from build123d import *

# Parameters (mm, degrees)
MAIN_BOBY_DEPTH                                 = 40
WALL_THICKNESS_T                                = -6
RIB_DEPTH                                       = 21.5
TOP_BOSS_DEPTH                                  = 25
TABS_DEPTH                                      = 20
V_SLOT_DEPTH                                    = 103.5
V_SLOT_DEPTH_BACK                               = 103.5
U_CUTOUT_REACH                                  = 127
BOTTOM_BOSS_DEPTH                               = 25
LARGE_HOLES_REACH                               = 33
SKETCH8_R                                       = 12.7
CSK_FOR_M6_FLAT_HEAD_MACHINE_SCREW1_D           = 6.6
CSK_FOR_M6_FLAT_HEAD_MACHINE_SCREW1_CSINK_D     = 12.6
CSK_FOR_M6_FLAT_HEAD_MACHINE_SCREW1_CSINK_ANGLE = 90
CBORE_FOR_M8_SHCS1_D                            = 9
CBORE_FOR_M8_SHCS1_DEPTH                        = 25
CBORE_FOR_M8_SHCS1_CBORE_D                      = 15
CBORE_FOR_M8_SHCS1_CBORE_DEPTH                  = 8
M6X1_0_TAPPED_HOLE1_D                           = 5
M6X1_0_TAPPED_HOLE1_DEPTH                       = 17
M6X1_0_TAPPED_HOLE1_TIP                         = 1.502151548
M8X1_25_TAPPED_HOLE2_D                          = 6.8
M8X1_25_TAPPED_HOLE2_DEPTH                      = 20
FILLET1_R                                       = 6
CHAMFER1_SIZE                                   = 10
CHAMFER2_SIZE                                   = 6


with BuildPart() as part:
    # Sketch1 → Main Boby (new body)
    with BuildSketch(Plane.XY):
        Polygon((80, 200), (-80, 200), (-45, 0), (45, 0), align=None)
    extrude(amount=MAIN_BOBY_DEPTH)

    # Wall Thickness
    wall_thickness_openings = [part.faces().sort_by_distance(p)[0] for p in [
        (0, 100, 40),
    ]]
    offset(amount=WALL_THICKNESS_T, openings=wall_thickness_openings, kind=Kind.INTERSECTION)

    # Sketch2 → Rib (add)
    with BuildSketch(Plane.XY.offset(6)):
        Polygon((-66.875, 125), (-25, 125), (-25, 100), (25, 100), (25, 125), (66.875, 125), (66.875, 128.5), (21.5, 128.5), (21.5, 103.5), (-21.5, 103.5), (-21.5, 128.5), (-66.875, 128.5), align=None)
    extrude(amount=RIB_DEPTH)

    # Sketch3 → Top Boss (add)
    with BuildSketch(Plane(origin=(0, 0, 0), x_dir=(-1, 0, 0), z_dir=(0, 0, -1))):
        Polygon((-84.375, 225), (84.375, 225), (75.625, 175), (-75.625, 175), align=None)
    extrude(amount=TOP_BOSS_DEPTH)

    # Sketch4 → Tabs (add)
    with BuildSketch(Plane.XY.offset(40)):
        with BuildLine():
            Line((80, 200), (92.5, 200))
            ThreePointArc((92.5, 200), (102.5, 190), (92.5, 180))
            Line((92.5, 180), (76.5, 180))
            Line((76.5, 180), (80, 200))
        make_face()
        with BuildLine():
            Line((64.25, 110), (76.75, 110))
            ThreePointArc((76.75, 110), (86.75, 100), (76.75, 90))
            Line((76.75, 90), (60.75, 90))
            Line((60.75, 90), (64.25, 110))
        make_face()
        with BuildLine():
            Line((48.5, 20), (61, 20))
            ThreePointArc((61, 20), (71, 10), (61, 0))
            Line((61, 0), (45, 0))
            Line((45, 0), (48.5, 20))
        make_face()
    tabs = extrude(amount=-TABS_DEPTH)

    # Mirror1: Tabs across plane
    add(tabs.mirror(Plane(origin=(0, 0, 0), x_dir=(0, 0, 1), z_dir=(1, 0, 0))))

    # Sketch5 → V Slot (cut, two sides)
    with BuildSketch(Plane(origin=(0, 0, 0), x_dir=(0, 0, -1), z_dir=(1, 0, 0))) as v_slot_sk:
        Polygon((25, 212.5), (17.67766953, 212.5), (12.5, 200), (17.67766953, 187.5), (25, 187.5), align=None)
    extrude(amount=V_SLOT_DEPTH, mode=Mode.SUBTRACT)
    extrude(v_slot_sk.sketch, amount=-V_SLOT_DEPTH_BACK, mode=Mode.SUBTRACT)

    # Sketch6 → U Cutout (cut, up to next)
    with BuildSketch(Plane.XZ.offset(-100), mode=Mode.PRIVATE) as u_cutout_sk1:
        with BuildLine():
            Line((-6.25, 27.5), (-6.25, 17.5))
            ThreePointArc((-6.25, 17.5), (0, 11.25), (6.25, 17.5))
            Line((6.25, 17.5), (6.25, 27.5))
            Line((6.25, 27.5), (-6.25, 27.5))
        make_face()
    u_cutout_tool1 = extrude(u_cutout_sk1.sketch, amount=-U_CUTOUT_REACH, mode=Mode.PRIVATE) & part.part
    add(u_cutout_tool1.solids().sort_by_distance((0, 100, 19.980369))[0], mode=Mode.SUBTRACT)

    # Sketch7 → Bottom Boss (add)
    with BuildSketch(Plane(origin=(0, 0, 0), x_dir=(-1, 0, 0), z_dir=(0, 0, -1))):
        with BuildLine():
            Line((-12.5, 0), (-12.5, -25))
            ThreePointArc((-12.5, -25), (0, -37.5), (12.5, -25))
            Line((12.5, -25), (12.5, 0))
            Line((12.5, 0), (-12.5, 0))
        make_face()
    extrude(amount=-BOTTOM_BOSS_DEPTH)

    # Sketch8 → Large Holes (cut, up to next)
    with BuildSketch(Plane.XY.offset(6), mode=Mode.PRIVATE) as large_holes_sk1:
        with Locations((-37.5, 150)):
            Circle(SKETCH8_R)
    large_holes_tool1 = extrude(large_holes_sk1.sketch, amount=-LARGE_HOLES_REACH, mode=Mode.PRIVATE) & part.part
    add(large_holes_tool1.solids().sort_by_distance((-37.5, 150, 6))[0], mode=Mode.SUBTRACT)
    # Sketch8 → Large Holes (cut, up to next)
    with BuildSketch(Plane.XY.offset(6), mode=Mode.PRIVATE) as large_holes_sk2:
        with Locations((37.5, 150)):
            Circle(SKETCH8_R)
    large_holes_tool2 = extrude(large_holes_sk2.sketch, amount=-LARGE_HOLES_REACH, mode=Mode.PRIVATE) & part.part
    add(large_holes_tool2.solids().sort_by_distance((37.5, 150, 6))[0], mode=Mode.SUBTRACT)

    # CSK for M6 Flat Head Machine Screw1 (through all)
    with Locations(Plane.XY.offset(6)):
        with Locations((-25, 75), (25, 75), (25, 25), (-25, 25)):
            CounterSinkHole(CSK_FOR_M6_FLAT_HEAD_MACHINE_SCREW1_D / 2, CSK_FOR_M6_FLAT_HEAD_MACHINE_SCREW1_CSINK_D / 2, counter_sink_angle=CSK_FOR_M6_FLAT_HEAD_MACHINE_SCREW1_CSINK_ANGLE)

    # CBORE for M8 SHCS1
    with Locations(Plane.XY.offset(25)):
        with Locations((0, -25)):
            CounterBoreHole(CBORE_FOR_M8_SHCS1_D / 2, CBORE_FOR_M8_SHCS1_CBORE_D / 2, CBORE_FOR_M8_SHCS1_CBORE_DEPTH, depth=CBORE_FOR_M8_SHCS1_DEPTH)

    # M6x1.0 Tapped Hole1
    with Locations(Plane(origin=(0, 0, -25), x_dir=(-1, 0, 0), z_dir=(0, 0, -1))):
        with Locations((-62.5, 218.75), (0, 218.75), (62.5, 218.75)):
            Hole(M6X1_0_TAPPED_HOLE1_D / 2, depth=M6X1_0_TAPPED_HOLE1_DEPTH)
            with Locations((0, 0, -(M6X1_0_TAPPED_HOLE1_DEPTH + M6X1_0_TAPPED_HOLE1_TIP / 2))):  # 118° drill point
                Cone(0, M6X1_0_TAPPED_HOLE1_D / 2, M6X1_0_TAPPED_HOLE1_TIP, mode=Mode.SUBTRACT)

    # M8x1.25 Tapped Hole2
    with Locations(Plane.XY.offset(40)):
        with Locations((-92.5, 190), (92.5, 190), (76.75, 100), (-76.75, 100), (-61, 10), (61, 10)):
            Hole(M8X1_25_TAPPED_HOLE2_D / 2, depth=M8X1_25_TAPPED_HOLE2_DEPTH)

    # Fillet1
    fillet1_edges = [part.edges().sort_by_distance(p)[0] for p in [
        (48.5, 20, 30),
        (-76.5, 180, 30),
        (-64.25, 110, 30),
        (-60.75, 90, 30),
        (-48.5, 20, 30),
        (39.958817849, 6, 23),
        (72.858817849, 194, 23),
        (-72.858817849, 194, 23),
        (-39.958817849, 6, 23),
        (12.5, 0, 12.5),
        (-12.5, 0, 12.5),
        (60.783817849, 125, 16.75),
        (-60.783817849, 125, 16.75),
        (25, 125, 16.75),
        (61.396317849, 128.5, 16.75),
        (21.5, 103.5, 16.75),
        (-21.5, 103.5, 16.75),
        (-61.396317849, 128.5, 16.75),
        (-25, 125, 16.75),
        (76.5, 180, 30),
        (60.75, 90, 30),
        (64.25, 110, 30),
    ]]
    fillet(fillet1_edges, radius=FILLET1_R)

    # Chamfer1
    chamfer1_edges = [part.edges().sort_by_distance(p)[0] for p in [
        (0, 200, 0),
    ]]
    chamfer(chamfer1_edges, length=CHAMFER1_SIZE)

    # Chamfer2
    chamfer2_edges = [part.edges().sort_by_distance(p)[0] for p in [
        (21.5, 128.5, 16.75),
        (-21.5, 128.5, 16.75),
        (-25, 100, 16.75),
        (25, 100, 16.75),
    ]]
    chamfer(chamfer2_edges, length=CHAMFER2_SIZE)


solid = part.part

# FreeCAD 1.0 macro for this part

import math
import FreeCAD as App
import Part
import Sketcher
Q = App.Units.Quantity


def edges_at(feature, points):
    """Names of the edges that pass closest to the given points."""
    edges = feature.Shape.Edges
    near = lambda p: min(range(len(edges)), key=lambda i: edges[i].distToShape(Part.Vertex(*p))[0])
    return sorted({f"Edge{near(p) + 1}" for p in points})


def faces_at(feature, points):
    """Names of the faces that lie closest to the given points."""
    faces = feature.Shape.Faces
    near = lambda p: min(range(len(faces)), key=lambda i: faces[i].distToShape(Part.Vertex(*p))[0])
    return sorted({f"Face{near(p) + 1}" for p in points})

doc = App.newDocument("Part")
body = doc.addObject("PartDesign::Body", "Body")

sketch1 = doc.addObject("Sketcher::SketchObject", "Sketch")
body.addObject(sketch1)
sketch1.AttachmentSupport = (doc.XY_Plane, [""])
sketch1.MapMode = "FlatFace"
sketch1.addGeometry([
    Part.LineSegment(App.Vector(80, 200, 0), App.Vector(-80, 200, 0)),
    Part.LineSegment(App.Vector(-80, 200, 0), App.Vector(-45, 0, 0)),
    Part.LineSegment(App.Vector(-45, 0, 0), App.Vector(45, 0, 0)),
    Part.LineSegment(App.Vector(45, 0, 0), App.Vector(80, 200, 0)),
], False)
sketch1.addConstraint([
    Sketcher.Constraint("Coincident", 0, 2, 1, 1),
    Sketcher.Constraint("Coincident", 1, 2, 2, 1),
    Sketcher.Constraint("Coincident", 2, 2, 3, 1),
    Sketcher.Constraint("Coincident", 3, 2, 0, 1),
    Sketcher.Constraint("Horizontal", 0),
    Sketcher.Constraint("Horizontal", 2),
    Sketcher.Constraint("Symmetric", 1, 2, 2, 2, -1, 1),
    Sketcher.Constraint("Equal", 1, 3),
    Sketcher.Constraint("DistanceX", 0, 2, 0, 1, 160.0),
    Sketcher.Constraint("DistanceX", 2, 1, 2, 2, 90.0),
    Sketcher.Constraint("DistanceY", -1, 1, 0, 2, 200.0),
])
pad1 = doc.addObject("PartDesign::Pad", "Pad")
body.addObject(pad1)
pad1.Profile = sketch1
pad1.Length = 40
doc.recompute()

thickness = doc.addObject("PartDesign::Thickness", "Thickness")
body.addObject(thickness)
thickness.Base = (pad1, faces_at(pad1, [(0, 100, 40)]))
thickness.Value = 6
thickness.Reversed = True
thickness.Join = "Intersection"

sketch2 = doc.addObject("Sketcher::SketchObject", "Sketch001")
body.addObject(sketch2)
sketch2.AttachmentSupport = (doc.XY_Plane, [""])
sketch2.MapMode = "FlatFace"
sketch2.AttachmentOffset = App.Placement(App.Vector(0, 0, 6), App.Rotation())
sketch2.addGeometry([
    Part.LineSegment(App.Vector(-66.9, 125, 0), App.Vector(-25, 125, 0)),
    Part.LineSegment(App.Vector(-25, 125, 0), App.Vector(-25, 100, 0)),
    Part.LineSegment(App.Vector(-25, 100, 0), App.Vector(25, 100, 0)),
    Part.LineSegment(App.Vector(25, 100, 0), App.Vector(25, 125, 0)),
    Part.LineSegment(App.Vector(25, 125, 0), App.Vector(66.9, 125, 0)),
    Part.LineSegment(App.Vector(66.9, 125, 0), App.Vector(66.9, 128.5, 0)),
    Part.LineSegment(App.Vector(66.9, 128.5, 0), App.Vector(21.5, 128.5, 0)),
    Part.LineSegment(App.Vector(21.5, 128.5, 0), App.Vector(21.5, 103.5, 0)),
    Part.LineSegment(App.Vector(21.5, 103.5, 0), App.Vector(-21.5, 103.5, 0)),
    Part.LineSegment(App.Vector(-21.5, 103.5, 0), App.Vector(-21.5, 128.5, 0)),
    Part.LineSegment(App.Vector(-21.5, 128.5, 0), App.Vector(-66.9, 128.5, 0)),
    Part.LineSegment(App.Vector(-66.9, 128.5, 0), App.Vector(-66.9, 125, 0)),
], False)
sketch2.addConstraint([
    Sketcher.Constraint("Coincident", 0, 2, 1, 1),
    Sketcher.Constraint("Coincident", 1, 2, 2, 1),
    Sketcher.Constraint("Coincident", 2, 2, 3, 1),
    Sketcher.Constraint("Coincident", 3, 2, 4, 1),
    Sketcher.Constraint("Coincident", 4, 2, 5, 1),
    Sketcher.Constraint("Coincident", 5, 2, 6, 1),
    Sketcher.Constraint("Coincident", 6, 2, 7, 1),
    Sketcher.Constraint("Coincident", 7, 2, 8, 1),
    Sketcher.Constraint("Coincident", 8, 2, 9, 1),
    Sketcher.Constraint("Coincident", 9, 2, 10, 1),
    Sketcher.Constraint("Coincident", 10, 2, 11, 1),
    Sketcher.Constraint("Coincident", 11, 2, 0, 1),
    Sketcher.Constraint("Horizontal", 0),
    Sketcher.Constraint("Vertical", 1),
    Sketcher.Constraint("Horizontal", 2),
    Sketcher.Constraint("Vertical", 3),
    Sketcher.Constraint("Horizontal", 4),
    Sketcher.Constraint("Vertical", 5),
    Sketcher.Constraint("Horizontal", 6),
    Sketcher.Constraint("Vertical", 7),
    Sketcher.Constraint("Horizontal", 8),
    Sketcher.Constraint("Vertical", 9),
    Sketcher.Constraint("Horizontal", 10),
    Sketcher.Constraint("Vertical", 11),
    Sketcher.Constraint("Symmetric", 0, 2, 3, 2, -2),
    Sketcher.Constraint("Symmetric", 6, 2, 9, 2, -2),
    Sketcher.Constraint("Equal", 0, 4),
    Sketcher.Constraint("Equal", 3, 7),
    Sketcher.Constraint("DistanceX", 2, 1, 2, 2, 50.0),
    Sketcher.Constraint("DistanceX", 8, 2, 8, 1, 43.0),
    Sketcher.Constraint("DistanceY", 1, 2, 1, 1, 25.0),
    Sketcher.Constraint("DistanceY", 5, 1, 5, 2, 3.5),
    Sketcher.Constraint("DistanceY", -1, 1, 0, 2, 125.0),
    Sketcher.Constraint("DistanceX", 0, 1, 0, 2, 41.875),
])
pad2 = doc.addObject("PartDesign::Pad", "Pad001")
body.addObject(pad2)
pad2.Profile = sketch2
pad2.Length = 21.5

sketch3 = doc.addObject("Sketcher::SketchObject", "Sketch002")
body.addObject(sketch3)
sketch3.AttachmentSupport = (doc.XY_Plane, [""])
sketch3.MapMode = "FlatFace"
sketch3.addGeometry([
    Part.LineSegment(App.Vector(-84, 225, 0), App.Vector(84, 225, 0)),
    Part.LineSegment(App.Vector(84, 225, 0), App.Vector(76, 175, 0)),
    Part.LineSegment(App.Vector(76, 175, 0), App.Vector(-76, 175, 0)),
    Part.LineSegment(App.Vector(-76, 175, 0), App.Vector(-84, 225, 0)),
], False)
sketch3.addConstraint([
    Sketcher.Constraint("Coincident", 0, 2, 1, 1),
    Sketcher.Constraint("Coincident", 1, 2, 2, 1),
    Sketcher.Constraint("Coincident", 2, 2, 3, 1),
    Sketcher.Constraint("Coincident", 3, 2, 0, 1),
    Sketcher.Constraint("Horizontal", 0),
    Sketcher.Constraint("Horizontal", 2),
    Sketcher.Constraint("Equal", 1, 3),
    Sketcher.Constraint("DistanceY", -1, 1, 0, 2, 225.0),
    Sketcher.Constraint("DistanceY", -1, 1, 1, 2, 175.0),
    Sketcher.Constraint("DistanceX", 2, 2, 0, 2, 160.0),
    Sketcher.Constraint("DistanceX", 0, 1, 0, 2, 168.75),
    Sketcher.Constraint("DistanceX", -1, 1, 0, 2, 84.375),
])
pad3 = doc.addObject("PartDesign::Pad", "Pad002")
body.addObject(pad3)
pad3.Profile = sketch3
pad3.Length = 25
pad3.Reversed = True

sketch4 = doc.addObject("Sketcher::SketchObject", "Sketch003")
body.addObject(sketch4)
sketch4.AttachmentSupport = (doc.XY_Plane, [""])
sketch4.MapMode = "FlatFace"
sketch4.AttachmentOffset = App.Placement(App.Vector(0, 0, 40), App.Rotation())
sketch4.addGeometry([
    Part.LineSegment(App.Vector(92, 200, 0), App.Vector(80, 200, 0)),
    Part.LineSegment(App.Vector(80, 200, 0), App.Vector(76, 180, 0)),
    Part.LineSegment(App.Vector(76, 180, 0), App.Vector(92, 180, 0)),
    Part.ArcOfCircle(Part.Circle(App.Vector(92, 190, 0), App.Vector(0, 0, 1), 10), math.radians(-90), math.radians(90)),
    Part.LineSegment(App.Vector(77, 110, 0), App.Vector(64, 110, 0)),
    Part.LineSegment(App.Vector(64, 110, 0), App.Vector(61, 90, 0)),
    Part.LineSegment(App.Vector(61, 90, 0), App.Vector(77, 90, 0)),
    Part.ArcOfCircle(Part.Circle(App.Vector(77, 100, 0), App.Vector(0, 0, 1), 10), math.radians(-90), math.radians(90)),
    Part.LineSegment(App.Vector(61, 20, 0), App.Vector(48, 20, 0)),
    Part.LineSegment(App.Vector(48, 20, 0), App.Vector(45, 0, 0)),
    Part.LineSegment(App.Vector(45, 0, 0), App.Vector(61, 0, 0)),
    Part.ArcOfCircle(Part.Circle(App.Vector(61, 10, 0), App.Vector(0, 0, 1), 10), math.radians(-90), math.radians(90)),
], False)
sketch4.addConstraint([
    Sketcher.Constraint("Coincident", 0, 2, 1, 1),
    Sketcher.Constraint("Coincident", 1, 2, 2, 1),
    Sketcher.Constraint("Tangent", 2, 2, 3, 1),
    Sketcher.Constraint("Tangent", 3, 2, 0, 1),
    Sketcher.Constraint("Coincident", 4, 2, 5, 1),
    Sketcher.Constraint("Coincident", 5, 2, 6, 1),
    Sketcher.Constraint("Tangent", 6, 2, 7, 1),
    Sketcher.Constraint("Tangent", 7, 2, 4, 1),
    Sketcher.Constraint("Coincident", 8, 2, 9, 1),
    Sketcher.Constraint("Coincident", 9, 2, 10, 1),
    Sketcher.Constraint("Tangent", 10, 2, 11, 1),
    Sketcher.Constraint("Tangent", 11, 2, 8, 1),
    Sketcher.Constraint("Horizontal", 0),
    Sketcher.Constraint("Horizontal", 2),
    Sketcher.Constraint("Horizontal", 4),
    Sketcher.Constraint("Horizontal", 6),
    Sketcher.Constraint("Horizontal", 8),
    Sketcher.Constraint("Horizontal", 10),
    Sketcher.Constraint("Equal", 3, 7),
    Sketcher.Constraint("Equal", 7, 11),
    Sketcher.Constraint("PointOnObject", 9, 2, -1),
    Sketcher.Constraint("Parallel", 1, 5),
    Sketcher.Constraint("Parallel", 5, 9),
    Sketcher.Constraint("Equal", 0, 4),
    Sketcher.Constraint("Equal", 4, 8),
    Sketcher.Constraint("Radius", 3, 10.0),
    Sketcher.Constraint("DistanceX", 2, 1, 2, 2, 16.0),
    Sketcher.Constraint("DistanceX", 0, 2, 0, 1, 12.5),
    Sketcher.Constraint("DistanceY", -1, 1, 3, 3, 190.0),
    Sketcher.Constraint("DistanceY", -1, 1, 7, 3, 100.0),
    Sketcher.Constraint("DistanceX", -1, 1, 11, 3, 61.0),
    Sketcher.Constraint("DistanceX", -1, 1, 0, 2, 80.0),
    Sketcher.Constraint("DistanceX", -1, 1, 7, 3, 76.75),
])
pad4 = doc.addObject("PartDesign::Pad", "Pad003")
body.addObject(pad4)
pad4.Profile = sketch4
pad4.Length = 20
pad4.Reversed = True
doc.recompute()

mirrored = doc.addObject("PartDesign::Mirrored", "Mirrored")
body.addObject(mirrored)
mirrored.Originals = [pad4]
mirrored.MirrorPlane = (doc.YZ_Plane, [""])
body.Tip = mirrored

sketch5 = doc.addObject("Sketcher::SketchObject", "Sketch004")
body.addObject(sketch5)
sketch5.AttachmentSupport = (doc.YZ_Plane, [""])
sketch5.MapMode = "FlatFace"
sketch5.addGeometry([
    Part.LineSegment(App.Vector(212, -25, 0), App.Vector(212, -18, 0)),
    Part.LineSegment(App.Vector(212, -18, 0), App.Vector(200, -12, 0)),
    Part.LineSegment(App.Vector(200, -12, 0), App.Vector(188, -18, 0)),
    Part.LineSegment(App.Vector(188, -18, 0), App.Vector(188, -25, 0)),
    Part.LineSegment(App.Vector(188, -25, 0), App.Vector(212, -25, 0)),
], False)
sketch5.addConstraint([
    Sketcher.Constraint("Coincident", 0, 2, 1, 1),
    Sketcher.Constraint("Coincident", 1, 2, 2, 1),
    Sketcher.Constraint("Coincident", 2, 2, 3, 1),
    Sketcher.Constraint("Coincident", 3, 2, 4, 1),
    Sketcher.Constraint("Coincident", 4, 2, 0, 1),
    Sketcher.Constraint("Vertical", 0),
    Sketcher.Constraint("Vertical", 3),
    Sketcher.Constraint("Horizontal", 4),
    Sketcher.Constraint("Horizontal", 0, 2, 2, 2),
    Sketcher.Constraint("Equal", 1, 2),
    Sketcher.Constraint("DistanceX", 4, 1, 4, 2, 25.0),
    Sketcher.Constraint("DistanceX", -1, 1, 1, 2, 200.0),
    Sketcher.Constraint("DistanceY", 3, 2, -1, 1, 25.0),
    Sketcher.Constraint("Angle", 1, Q("157.5 deg")),
    Sketcher.Constraint("DistanceY", 1, 2, -1, 1, 12.5),
])
pocket1 = doc.addObject("PartDesign::Pocket", "Pocket")
body.addObject(pocket1)
pocket1.Profile = sketch5
pocket1.Type = "ThroughAll"
pocket1.Midplane = True

sketch6 = doc.addObject("Sketcher::SketchObject", "Sketch005")
body.addObject(sketch6)
sketch6.AttachmentSupport = (doc.XZ_Plane, [""])
sketch6.MapMode = "FlatFace"
sketch6.AttachmentOffset = App.Placement(App.Vector(0, 0, -100), App.Rotation())
sketch6.addGeometry([
    Part.LineSegment(App.Vector(-6, 28, 0), App.Vector(-6, 18, 0)),
    Part.ArcOfCircle(Part.Circle(App.Vector(0, 18, 0), App.Vector(0, 0, 1), 6), math.radians(180), math.radians(360)),
    Part.LineSegment(App.Vector(6, 18, 0), App.Vector(6, 28, 0)),
    Part.LineSegment(App.Vector(6, 28, 0), App.Vector(-6, 28, 0)),
], False)
sketch6.addConstraint([
    Sketcher.Constraint("Tangent", 0, 2, 1, 1),
    Sketcher.Constraint("Tangent", 1, 2, 2, 1),
    Sketcher.Constraint("Coincident", 2, 2, 3, 1),
    Sketcher.Constraint("Coincident", 3, 2, 0, 1),
    Sketcher.Constraint("Vertical", 0),
    Sketcher.Constraint("Vertical", 2),
    Sketcher.Constraint("Horizontal", 3),
    Sketcher.Constraint("PointOnObject", 1, 3, -2),
    Sketcher.Constraint("DistanceY", 0, 2, 0, 1, 10.0),
    Sketcher.Constraint("Radius", 1, 6.25),
    Sketcher.Constraint("DistanceY", -1, 1, 1, 3, 17.5),
])
pocket2 = doc.addObject("PartDesign::Pocket", "Pocket001")
body.addObject(pocket2)
pocket2.Profile = sketch6
pocket2.Type = "UpToFirst"

sketch7 = doc.addObject("Sketcher::SketchObject", "Sketch006")
body.addObject(sketch7)
sketch7.AttachmentSupport = (doc.XY_Plane, [""])
sketch7.MapMode = "FlatFace"
sketch7.addGeometry([
    Part.LineSegment(App.Vector(12, 0, 0), App.Vector(12, -25, 0)),
    Part.ArcOfCircle(Part.Circle(App.Vector(0, -25, 0), App.Vector(0, 0, 1), 12), math.radians(180), math.radians(360)),
    Part.LineSegment(App.Vector(-12, -25, 0), App.Vector(-12, 0, 0)),
    Part.LineSegment(App.Vector(-12, 0, 0), App.Vector(12, 0, 0)),
], False)
sketch7.addConstraint([
    Sketcher.Constraint("Tangent", 0, 2, 1, 2),
    Sketcher.Constraint("Tangent", 1, 1, 2, 1),
    Sketcher.Constraint("Coincident", 2, 2, 3, 1),
    Sketcher.Constraint("Coincident", 3, 2, 0, 1),
    Sketcher.Constraint("Vertical", 0),
    Sketcher.Constraint("Vertical", 2),
    Sketcher.Constraint("Horizontal", 3),
    Sketcher.Constraint("Symmetric", 2, 2, 3, 2, -1, 1),
    Sketcher.Constraint("Equal", 3, 0),
    Sketcher.Constraint("Radius", 1, 12.5),
])
pad5 = doc.addObject("PartDesign::Pad", "Pad004")
body.addObject(pad5)
pad5.Profile = sketch7
pad5.Length = 25

sketch8 = doc.addObject("Sketcher::SketchObject", "Sketch007")
body.addObject(sketch8)
sketch8.AttachmentSupport = (doc.XY_Plane, [""])
sketch8.MapMode = "FlatFace"
sketch8.AttachmentOffset = App.Placement(App.Vector(0, 0, 6), App.Rotation())
sketch8.addGeometry(Part.Circle(App.Vector(-38, 150, 0), App.Vector(0, 0, 1), 13), False)
sketch8.addConstraint([
    Sketcher.Constraint("Diameter", 0, 25.4),
    Sketcher.Constraint("DistanceY", -1, 1, 0, 3, 150.0),
    Sketcher.Constraint("DistanceX", 0, 3, -1, 1, 37.5),
])
pocket3 = doc.addObject("PartDesign::Pocket", "Pocket002")
body.addObject(pocket3)
pocket3.Profile = sketch8
pocket3.Type = "UpToFirst"

sketch9 = doc.addObject("Sketcher::SketchObject", "Sketch008")
body.addObject(sketch9)
sketch9.AttachmentSupport = (doc.XY_Plane, [""])
sketch9.MapMode = "FlatFace"
sketch9.AttachmentOffset = App.Placement(App.Vector(0, 0, 6), App.Rotation())
sketch9.addGeometry(Part.Circle(App.Vector(38, 150, 0), App.Vector(0, 0, 1), 13), False)
sketch9.addConstraint([
    Sketcher.Constraint("Diameter", 0, 25.4),
    Sketcher.Constraint("DistanceY", -1, 1, 0, 3, 150.0),
    Sketcher.Constraint("DistanceX", -1, 1, 0, 3, 37.5),
])
pocket4 = doc.addObject("PartDesign::Pocket", "Pocket003")
body.addObject(pocket4)
pocket4.Profile = sketch9
pocket4.Type = "UpToFirst"

sketch10 = doc.addObject("Sketcher::SketchObject", "Sketch009")
body.addObject(sketch10)
sketch10.AttachmentSupport = (doc.XY_Plane, [""])
sketch10.MapMode = "FlatFace"
sketch10.AttachmentOffset = App.Placement(App.Vector(0, 0, 6), App.Rotation())
sketch10.addGeometry([
    Part.Circle(App.Vector(-25, 75, 0), App.Vector(0, 0, 1), 3.3),
    Part.Circle(App.Vector(25, 75, 0), App.Vector(0, 0, 1), 3.3),
    Part.Circle(App.Vector(25, 25, 0), App.Vector(0, 0, 1), 3.3),
    Part.Circle(App.Vector(-25, 25, 0), App.Vector(0, 0, 1), 3.3),
], False)
sketch10.addConstraint([
    Sketcher.Constraint("Equal", 0, 1),
    Sketcher.Constraint("Equal", 1, 2),
    Sketcher.Constraint("Equal", 2, 3),
    Sketcher.Constraint("Symmetric", 0, 3, 1, 3, -2),
    Sketcher.Constraint("Symmetric", 2, 3, 3, 3, -2),
    Sketcher.Constraint("Vertical", 1, 3, 2, 3),
    Sketcher.Constraint("Diameter", 0, 6.6),
    Sketcher.Constraint("DistanceX", 0, 3, -1, 1, 25.0),
    Sketcher.Constraint("DistanceY", -1, 1, 0, 3, 75.0),
    Sketcher.Constraint("DistanceY", -1, 1, 2, 3, 25.0),
])
doc.recompute()
hole = doc.addObject("PartDesign::Hole", "Hole")
body.addObject(hole)
hole.Profile = sketch10
hole.ThreadType = "None"
hole.Diameter = 6.6
hole.DepthType = "ThroughAll"
hole.HoleCutType = "Countersink"
hole.HoleCutDiameter = 12.6
hole.HoleCutCountersinkAngle = 90

sketch11 = doc.addObject("Sketcher::SketchObject", "Sketch010")
body.addObject(sketch11)
sketch11.AttachmentSupport = (doc.XY_Plane, [""])
sketch11.MapMode = "FlatFace"
sketch11.AttachmentOffset = App.Placement(App.Vector(0, 0, 25), App.Rotation())
sketch11.addGeometry(Part.Circle(App.Vector(0, -25, 0), App.Vector(0, 0, 1), 4.5), False)
sketch11.addConstraint([
    Sketcher.Constraint("PointOnObject", 0, 3, -2),
    Sketcher.Constraint("Diameter", 0, 9.0),
    Sketcher.Constraint("DistanceY", 0, 3, -1, 1, 25.0),
])
doc.recompute()
hole2 = doc.addObject("PartDesign::Hole", "Hole001")
body.addObject(hole2)
hole2.Profile = sketch11
hole2.ThreadType = "None"
hole2.Diameter = 9
hole2.DepthType = "Dimension"
hole2.Depth = 25
hole2.DrillPoint = "Flat"
hole2.HoleCutType = "Counterbore"
hole2.HoleCutDiameter = 15
hole2.HoleCutDepth = 8

sketch12 = doc.addObject("Sketcher::SketchObject", "Sketch011")
body.addObject(sketch12)
sketch12.AttachmentSupport = (doc.XY_Plane, [""])
sketch12.MapMode = "FlatFace"
sketch12.AttachmentOffset = App.Placement(App.Vector(0, 0, -25), App.Rotation())
sketch12.addGeometry([
    Part.Circle(App.Vector(62.5, 218.8, 0), App.Vector(0, 0, 1), 2.5),
    Part.Circle(App.Vector(0, 218.8, 0), App.Vector(0, 0, 1), 2.5),
    Part.Circle(App.Vector(-62.5, 218.8, 0), App.Vector(0, 0, 1), 2.5),
], False)
sketch12.addConstraint([
    Sketcher.Constraint("Equal", 0, 1),
    Sketcher.Constraint("Equal", 1, 2),
    Sketcher.Constraint("Symmetric", 0, 3, 2, 3, -2),
    Sketcher.Constraint("PointOnObject", 1, 3, -2),
    Sketcher.Constraint("Horizontal", 0, 3, 1, 3),
    Sketcher.Constraint("Diameter", 0, 5.0),
    Sketcher.Constraint("DistanceX", 2, 3, 0, 3, 125.0),
    Sketcher.Constraint("DistanceY", -1, 1, 0, 3, 218.75),
])
doc.recompute()
hole3 = doc.addObject("PartDesign::Hole", "Hole002")
body.addObject(hole3)
hole3.Profile = sketch12
hole3.ThreadType = "None"
hole3.Diameter = 5
hole3.DepthType = "Dimension"
hole3.Depth = 17
hole3.DrillPoint = "Angled"
hole3.DrillPointAngle = 118
hole3.Reversed = True

sketch13 = doc.addObject("Sketcher::SketchObject", "Sketch012")
body.addObject(sketch13)
sketch13.AttachmentSupport = (doc.XY_Plane, [""])
sketch13.MapMode = "FlatFace"
sketch13.AttachmentOffset = App.Placement(App.Vector(0, 0, 40), App.Rotation())
sketch13.addGeometry([
    Part.Circle(App.Vector(-92.5, 190, 0), App.Vector(0, 0, 1), 3.4),
    Part.Circle(App.Vector(92.5, 190, 0), App.Vector(0, 0, 1), 3.4),
    Part.Circle(App.Vector(76.8, 100, 0), App.Vector(0, 0, 1), 3.4),
    Part.Circle(App.Vector(-76.8, 100, 0), App.Vector(0, 0, 1), 3.4),
    Part.Circle(App.Vector(-61, 10, 0), App.Vector(0, 0, 1), 3.4),
    Part.Circle(App.Vector(61, 10, 0), App.Vector(0, 0, 1), 3.4),
], False)
sketch13.addConstraint([
    Sketcher.Constraint("Equal", 0, 1),
    Sketcher.Constraint("Equal", 1, 2),
    Sketcher.Constraint("Equal", 2, 3),
    Sketcher.Constraint("Equal", 3, 4),
    Sketcher.Constraint("Equal", 4, 5),
    Sketcher.Constraint("Symmetric", 0, 3, 1, 3, -2),
    Sketcher.Constraint("Symmetric", 2, 3, 3, 3, -2),
    Sketcher.Constraint("Symmetric", 4, 3, 5, 3, -2),
    Sketcher.Constraint("Diameter", 0, 6.8),
    Sketcher.Constraint("DistanceY", -1, 1, 0, 3, 190.0),
    Sketcher.Constraint("DistanceY", -1, 1, 2, 3, 100.0),
    Sketcher.Constraint("DistanceX", 4, 3, -1, 1, 61.0),
    Sketcher.Constraint("DistanceY", -1, 1, 4, 3, 10.0),
    Sketcher.Constraint("DistanceX", 0, 3, 1, 3, 185.0),
    Sketcher.Constraint("DistanceX", 3, 3, 2, 3, 153.5),
])
doc.recompute()
hole4 = doc.addObject("PartDesign::Hole", "Hole003")
body.addObject(hole4)
hole4.Profile = sketch13
hole4.ThreadType = "None"
hole4.Diameter = 6.8
hole4.DepthType = "Dimension"
hole4.Depth = 20
hole4.DrillPoint = "Flat"
doc.recompute()

fillet = doc.addObject("PartDesign::Fillet", "Fillet")
body.addObject(fillet)
fillet.Base = (hole4, edges_at(hole4, [
    (48.5, 20, 30),
    (-76.5, 180, 30),
    (-64.25, 110, 30),
    (-60.75, 90, 30),
    (-48.5, 20, 30),
    (39.959, 6, 23),
    (72.859, 194, 23),
    (-72.859, 194, 23),
    (-39.959, 6, 23),
    (12.5, 0, 12.5),
    (-12.5, 0, 12.5),
    (60.784, 125, 16.75),
    (-60.784, 125, 16.75),
    (25, 125, 16.75),
    (61.396, 128.5, 16.75),
    (21.5, 103.5, 16.75),
    (-21.5, 103.5, 16.75),
    (-61.396, 128.5, 16.75),
    (-25, 125, 16.75),
    (76.5, 180, 30),
    (60.75, 90, 30),
    (64.25, 110, 30),
]))
fillet.Radius = 6
doc.recompute()

chamfer = doc.addObject("PartDesign::Chamfer", "Chamfer")
body.addObject(chamfer)
chamfer.Base = (fillet, edges_at(fillet, [(0, 200, 0)]))
chamfer.Size = 10
doc.recompute()

chamfer2 = doc.addObject("PartDesign::Chamfer", "Chamfer001")
body.addObject(chamfer2)
chamfer2.Base = (chamfer, edges_at(chamfer, [
    (21.5, 128.5, 16.75),
    (-21.5, 128.5, 16.75),
    (-25, 100, 16.75),
    (25, 100, 16.75),
]))
chamfer2.Size = 6

doc.recompute()
